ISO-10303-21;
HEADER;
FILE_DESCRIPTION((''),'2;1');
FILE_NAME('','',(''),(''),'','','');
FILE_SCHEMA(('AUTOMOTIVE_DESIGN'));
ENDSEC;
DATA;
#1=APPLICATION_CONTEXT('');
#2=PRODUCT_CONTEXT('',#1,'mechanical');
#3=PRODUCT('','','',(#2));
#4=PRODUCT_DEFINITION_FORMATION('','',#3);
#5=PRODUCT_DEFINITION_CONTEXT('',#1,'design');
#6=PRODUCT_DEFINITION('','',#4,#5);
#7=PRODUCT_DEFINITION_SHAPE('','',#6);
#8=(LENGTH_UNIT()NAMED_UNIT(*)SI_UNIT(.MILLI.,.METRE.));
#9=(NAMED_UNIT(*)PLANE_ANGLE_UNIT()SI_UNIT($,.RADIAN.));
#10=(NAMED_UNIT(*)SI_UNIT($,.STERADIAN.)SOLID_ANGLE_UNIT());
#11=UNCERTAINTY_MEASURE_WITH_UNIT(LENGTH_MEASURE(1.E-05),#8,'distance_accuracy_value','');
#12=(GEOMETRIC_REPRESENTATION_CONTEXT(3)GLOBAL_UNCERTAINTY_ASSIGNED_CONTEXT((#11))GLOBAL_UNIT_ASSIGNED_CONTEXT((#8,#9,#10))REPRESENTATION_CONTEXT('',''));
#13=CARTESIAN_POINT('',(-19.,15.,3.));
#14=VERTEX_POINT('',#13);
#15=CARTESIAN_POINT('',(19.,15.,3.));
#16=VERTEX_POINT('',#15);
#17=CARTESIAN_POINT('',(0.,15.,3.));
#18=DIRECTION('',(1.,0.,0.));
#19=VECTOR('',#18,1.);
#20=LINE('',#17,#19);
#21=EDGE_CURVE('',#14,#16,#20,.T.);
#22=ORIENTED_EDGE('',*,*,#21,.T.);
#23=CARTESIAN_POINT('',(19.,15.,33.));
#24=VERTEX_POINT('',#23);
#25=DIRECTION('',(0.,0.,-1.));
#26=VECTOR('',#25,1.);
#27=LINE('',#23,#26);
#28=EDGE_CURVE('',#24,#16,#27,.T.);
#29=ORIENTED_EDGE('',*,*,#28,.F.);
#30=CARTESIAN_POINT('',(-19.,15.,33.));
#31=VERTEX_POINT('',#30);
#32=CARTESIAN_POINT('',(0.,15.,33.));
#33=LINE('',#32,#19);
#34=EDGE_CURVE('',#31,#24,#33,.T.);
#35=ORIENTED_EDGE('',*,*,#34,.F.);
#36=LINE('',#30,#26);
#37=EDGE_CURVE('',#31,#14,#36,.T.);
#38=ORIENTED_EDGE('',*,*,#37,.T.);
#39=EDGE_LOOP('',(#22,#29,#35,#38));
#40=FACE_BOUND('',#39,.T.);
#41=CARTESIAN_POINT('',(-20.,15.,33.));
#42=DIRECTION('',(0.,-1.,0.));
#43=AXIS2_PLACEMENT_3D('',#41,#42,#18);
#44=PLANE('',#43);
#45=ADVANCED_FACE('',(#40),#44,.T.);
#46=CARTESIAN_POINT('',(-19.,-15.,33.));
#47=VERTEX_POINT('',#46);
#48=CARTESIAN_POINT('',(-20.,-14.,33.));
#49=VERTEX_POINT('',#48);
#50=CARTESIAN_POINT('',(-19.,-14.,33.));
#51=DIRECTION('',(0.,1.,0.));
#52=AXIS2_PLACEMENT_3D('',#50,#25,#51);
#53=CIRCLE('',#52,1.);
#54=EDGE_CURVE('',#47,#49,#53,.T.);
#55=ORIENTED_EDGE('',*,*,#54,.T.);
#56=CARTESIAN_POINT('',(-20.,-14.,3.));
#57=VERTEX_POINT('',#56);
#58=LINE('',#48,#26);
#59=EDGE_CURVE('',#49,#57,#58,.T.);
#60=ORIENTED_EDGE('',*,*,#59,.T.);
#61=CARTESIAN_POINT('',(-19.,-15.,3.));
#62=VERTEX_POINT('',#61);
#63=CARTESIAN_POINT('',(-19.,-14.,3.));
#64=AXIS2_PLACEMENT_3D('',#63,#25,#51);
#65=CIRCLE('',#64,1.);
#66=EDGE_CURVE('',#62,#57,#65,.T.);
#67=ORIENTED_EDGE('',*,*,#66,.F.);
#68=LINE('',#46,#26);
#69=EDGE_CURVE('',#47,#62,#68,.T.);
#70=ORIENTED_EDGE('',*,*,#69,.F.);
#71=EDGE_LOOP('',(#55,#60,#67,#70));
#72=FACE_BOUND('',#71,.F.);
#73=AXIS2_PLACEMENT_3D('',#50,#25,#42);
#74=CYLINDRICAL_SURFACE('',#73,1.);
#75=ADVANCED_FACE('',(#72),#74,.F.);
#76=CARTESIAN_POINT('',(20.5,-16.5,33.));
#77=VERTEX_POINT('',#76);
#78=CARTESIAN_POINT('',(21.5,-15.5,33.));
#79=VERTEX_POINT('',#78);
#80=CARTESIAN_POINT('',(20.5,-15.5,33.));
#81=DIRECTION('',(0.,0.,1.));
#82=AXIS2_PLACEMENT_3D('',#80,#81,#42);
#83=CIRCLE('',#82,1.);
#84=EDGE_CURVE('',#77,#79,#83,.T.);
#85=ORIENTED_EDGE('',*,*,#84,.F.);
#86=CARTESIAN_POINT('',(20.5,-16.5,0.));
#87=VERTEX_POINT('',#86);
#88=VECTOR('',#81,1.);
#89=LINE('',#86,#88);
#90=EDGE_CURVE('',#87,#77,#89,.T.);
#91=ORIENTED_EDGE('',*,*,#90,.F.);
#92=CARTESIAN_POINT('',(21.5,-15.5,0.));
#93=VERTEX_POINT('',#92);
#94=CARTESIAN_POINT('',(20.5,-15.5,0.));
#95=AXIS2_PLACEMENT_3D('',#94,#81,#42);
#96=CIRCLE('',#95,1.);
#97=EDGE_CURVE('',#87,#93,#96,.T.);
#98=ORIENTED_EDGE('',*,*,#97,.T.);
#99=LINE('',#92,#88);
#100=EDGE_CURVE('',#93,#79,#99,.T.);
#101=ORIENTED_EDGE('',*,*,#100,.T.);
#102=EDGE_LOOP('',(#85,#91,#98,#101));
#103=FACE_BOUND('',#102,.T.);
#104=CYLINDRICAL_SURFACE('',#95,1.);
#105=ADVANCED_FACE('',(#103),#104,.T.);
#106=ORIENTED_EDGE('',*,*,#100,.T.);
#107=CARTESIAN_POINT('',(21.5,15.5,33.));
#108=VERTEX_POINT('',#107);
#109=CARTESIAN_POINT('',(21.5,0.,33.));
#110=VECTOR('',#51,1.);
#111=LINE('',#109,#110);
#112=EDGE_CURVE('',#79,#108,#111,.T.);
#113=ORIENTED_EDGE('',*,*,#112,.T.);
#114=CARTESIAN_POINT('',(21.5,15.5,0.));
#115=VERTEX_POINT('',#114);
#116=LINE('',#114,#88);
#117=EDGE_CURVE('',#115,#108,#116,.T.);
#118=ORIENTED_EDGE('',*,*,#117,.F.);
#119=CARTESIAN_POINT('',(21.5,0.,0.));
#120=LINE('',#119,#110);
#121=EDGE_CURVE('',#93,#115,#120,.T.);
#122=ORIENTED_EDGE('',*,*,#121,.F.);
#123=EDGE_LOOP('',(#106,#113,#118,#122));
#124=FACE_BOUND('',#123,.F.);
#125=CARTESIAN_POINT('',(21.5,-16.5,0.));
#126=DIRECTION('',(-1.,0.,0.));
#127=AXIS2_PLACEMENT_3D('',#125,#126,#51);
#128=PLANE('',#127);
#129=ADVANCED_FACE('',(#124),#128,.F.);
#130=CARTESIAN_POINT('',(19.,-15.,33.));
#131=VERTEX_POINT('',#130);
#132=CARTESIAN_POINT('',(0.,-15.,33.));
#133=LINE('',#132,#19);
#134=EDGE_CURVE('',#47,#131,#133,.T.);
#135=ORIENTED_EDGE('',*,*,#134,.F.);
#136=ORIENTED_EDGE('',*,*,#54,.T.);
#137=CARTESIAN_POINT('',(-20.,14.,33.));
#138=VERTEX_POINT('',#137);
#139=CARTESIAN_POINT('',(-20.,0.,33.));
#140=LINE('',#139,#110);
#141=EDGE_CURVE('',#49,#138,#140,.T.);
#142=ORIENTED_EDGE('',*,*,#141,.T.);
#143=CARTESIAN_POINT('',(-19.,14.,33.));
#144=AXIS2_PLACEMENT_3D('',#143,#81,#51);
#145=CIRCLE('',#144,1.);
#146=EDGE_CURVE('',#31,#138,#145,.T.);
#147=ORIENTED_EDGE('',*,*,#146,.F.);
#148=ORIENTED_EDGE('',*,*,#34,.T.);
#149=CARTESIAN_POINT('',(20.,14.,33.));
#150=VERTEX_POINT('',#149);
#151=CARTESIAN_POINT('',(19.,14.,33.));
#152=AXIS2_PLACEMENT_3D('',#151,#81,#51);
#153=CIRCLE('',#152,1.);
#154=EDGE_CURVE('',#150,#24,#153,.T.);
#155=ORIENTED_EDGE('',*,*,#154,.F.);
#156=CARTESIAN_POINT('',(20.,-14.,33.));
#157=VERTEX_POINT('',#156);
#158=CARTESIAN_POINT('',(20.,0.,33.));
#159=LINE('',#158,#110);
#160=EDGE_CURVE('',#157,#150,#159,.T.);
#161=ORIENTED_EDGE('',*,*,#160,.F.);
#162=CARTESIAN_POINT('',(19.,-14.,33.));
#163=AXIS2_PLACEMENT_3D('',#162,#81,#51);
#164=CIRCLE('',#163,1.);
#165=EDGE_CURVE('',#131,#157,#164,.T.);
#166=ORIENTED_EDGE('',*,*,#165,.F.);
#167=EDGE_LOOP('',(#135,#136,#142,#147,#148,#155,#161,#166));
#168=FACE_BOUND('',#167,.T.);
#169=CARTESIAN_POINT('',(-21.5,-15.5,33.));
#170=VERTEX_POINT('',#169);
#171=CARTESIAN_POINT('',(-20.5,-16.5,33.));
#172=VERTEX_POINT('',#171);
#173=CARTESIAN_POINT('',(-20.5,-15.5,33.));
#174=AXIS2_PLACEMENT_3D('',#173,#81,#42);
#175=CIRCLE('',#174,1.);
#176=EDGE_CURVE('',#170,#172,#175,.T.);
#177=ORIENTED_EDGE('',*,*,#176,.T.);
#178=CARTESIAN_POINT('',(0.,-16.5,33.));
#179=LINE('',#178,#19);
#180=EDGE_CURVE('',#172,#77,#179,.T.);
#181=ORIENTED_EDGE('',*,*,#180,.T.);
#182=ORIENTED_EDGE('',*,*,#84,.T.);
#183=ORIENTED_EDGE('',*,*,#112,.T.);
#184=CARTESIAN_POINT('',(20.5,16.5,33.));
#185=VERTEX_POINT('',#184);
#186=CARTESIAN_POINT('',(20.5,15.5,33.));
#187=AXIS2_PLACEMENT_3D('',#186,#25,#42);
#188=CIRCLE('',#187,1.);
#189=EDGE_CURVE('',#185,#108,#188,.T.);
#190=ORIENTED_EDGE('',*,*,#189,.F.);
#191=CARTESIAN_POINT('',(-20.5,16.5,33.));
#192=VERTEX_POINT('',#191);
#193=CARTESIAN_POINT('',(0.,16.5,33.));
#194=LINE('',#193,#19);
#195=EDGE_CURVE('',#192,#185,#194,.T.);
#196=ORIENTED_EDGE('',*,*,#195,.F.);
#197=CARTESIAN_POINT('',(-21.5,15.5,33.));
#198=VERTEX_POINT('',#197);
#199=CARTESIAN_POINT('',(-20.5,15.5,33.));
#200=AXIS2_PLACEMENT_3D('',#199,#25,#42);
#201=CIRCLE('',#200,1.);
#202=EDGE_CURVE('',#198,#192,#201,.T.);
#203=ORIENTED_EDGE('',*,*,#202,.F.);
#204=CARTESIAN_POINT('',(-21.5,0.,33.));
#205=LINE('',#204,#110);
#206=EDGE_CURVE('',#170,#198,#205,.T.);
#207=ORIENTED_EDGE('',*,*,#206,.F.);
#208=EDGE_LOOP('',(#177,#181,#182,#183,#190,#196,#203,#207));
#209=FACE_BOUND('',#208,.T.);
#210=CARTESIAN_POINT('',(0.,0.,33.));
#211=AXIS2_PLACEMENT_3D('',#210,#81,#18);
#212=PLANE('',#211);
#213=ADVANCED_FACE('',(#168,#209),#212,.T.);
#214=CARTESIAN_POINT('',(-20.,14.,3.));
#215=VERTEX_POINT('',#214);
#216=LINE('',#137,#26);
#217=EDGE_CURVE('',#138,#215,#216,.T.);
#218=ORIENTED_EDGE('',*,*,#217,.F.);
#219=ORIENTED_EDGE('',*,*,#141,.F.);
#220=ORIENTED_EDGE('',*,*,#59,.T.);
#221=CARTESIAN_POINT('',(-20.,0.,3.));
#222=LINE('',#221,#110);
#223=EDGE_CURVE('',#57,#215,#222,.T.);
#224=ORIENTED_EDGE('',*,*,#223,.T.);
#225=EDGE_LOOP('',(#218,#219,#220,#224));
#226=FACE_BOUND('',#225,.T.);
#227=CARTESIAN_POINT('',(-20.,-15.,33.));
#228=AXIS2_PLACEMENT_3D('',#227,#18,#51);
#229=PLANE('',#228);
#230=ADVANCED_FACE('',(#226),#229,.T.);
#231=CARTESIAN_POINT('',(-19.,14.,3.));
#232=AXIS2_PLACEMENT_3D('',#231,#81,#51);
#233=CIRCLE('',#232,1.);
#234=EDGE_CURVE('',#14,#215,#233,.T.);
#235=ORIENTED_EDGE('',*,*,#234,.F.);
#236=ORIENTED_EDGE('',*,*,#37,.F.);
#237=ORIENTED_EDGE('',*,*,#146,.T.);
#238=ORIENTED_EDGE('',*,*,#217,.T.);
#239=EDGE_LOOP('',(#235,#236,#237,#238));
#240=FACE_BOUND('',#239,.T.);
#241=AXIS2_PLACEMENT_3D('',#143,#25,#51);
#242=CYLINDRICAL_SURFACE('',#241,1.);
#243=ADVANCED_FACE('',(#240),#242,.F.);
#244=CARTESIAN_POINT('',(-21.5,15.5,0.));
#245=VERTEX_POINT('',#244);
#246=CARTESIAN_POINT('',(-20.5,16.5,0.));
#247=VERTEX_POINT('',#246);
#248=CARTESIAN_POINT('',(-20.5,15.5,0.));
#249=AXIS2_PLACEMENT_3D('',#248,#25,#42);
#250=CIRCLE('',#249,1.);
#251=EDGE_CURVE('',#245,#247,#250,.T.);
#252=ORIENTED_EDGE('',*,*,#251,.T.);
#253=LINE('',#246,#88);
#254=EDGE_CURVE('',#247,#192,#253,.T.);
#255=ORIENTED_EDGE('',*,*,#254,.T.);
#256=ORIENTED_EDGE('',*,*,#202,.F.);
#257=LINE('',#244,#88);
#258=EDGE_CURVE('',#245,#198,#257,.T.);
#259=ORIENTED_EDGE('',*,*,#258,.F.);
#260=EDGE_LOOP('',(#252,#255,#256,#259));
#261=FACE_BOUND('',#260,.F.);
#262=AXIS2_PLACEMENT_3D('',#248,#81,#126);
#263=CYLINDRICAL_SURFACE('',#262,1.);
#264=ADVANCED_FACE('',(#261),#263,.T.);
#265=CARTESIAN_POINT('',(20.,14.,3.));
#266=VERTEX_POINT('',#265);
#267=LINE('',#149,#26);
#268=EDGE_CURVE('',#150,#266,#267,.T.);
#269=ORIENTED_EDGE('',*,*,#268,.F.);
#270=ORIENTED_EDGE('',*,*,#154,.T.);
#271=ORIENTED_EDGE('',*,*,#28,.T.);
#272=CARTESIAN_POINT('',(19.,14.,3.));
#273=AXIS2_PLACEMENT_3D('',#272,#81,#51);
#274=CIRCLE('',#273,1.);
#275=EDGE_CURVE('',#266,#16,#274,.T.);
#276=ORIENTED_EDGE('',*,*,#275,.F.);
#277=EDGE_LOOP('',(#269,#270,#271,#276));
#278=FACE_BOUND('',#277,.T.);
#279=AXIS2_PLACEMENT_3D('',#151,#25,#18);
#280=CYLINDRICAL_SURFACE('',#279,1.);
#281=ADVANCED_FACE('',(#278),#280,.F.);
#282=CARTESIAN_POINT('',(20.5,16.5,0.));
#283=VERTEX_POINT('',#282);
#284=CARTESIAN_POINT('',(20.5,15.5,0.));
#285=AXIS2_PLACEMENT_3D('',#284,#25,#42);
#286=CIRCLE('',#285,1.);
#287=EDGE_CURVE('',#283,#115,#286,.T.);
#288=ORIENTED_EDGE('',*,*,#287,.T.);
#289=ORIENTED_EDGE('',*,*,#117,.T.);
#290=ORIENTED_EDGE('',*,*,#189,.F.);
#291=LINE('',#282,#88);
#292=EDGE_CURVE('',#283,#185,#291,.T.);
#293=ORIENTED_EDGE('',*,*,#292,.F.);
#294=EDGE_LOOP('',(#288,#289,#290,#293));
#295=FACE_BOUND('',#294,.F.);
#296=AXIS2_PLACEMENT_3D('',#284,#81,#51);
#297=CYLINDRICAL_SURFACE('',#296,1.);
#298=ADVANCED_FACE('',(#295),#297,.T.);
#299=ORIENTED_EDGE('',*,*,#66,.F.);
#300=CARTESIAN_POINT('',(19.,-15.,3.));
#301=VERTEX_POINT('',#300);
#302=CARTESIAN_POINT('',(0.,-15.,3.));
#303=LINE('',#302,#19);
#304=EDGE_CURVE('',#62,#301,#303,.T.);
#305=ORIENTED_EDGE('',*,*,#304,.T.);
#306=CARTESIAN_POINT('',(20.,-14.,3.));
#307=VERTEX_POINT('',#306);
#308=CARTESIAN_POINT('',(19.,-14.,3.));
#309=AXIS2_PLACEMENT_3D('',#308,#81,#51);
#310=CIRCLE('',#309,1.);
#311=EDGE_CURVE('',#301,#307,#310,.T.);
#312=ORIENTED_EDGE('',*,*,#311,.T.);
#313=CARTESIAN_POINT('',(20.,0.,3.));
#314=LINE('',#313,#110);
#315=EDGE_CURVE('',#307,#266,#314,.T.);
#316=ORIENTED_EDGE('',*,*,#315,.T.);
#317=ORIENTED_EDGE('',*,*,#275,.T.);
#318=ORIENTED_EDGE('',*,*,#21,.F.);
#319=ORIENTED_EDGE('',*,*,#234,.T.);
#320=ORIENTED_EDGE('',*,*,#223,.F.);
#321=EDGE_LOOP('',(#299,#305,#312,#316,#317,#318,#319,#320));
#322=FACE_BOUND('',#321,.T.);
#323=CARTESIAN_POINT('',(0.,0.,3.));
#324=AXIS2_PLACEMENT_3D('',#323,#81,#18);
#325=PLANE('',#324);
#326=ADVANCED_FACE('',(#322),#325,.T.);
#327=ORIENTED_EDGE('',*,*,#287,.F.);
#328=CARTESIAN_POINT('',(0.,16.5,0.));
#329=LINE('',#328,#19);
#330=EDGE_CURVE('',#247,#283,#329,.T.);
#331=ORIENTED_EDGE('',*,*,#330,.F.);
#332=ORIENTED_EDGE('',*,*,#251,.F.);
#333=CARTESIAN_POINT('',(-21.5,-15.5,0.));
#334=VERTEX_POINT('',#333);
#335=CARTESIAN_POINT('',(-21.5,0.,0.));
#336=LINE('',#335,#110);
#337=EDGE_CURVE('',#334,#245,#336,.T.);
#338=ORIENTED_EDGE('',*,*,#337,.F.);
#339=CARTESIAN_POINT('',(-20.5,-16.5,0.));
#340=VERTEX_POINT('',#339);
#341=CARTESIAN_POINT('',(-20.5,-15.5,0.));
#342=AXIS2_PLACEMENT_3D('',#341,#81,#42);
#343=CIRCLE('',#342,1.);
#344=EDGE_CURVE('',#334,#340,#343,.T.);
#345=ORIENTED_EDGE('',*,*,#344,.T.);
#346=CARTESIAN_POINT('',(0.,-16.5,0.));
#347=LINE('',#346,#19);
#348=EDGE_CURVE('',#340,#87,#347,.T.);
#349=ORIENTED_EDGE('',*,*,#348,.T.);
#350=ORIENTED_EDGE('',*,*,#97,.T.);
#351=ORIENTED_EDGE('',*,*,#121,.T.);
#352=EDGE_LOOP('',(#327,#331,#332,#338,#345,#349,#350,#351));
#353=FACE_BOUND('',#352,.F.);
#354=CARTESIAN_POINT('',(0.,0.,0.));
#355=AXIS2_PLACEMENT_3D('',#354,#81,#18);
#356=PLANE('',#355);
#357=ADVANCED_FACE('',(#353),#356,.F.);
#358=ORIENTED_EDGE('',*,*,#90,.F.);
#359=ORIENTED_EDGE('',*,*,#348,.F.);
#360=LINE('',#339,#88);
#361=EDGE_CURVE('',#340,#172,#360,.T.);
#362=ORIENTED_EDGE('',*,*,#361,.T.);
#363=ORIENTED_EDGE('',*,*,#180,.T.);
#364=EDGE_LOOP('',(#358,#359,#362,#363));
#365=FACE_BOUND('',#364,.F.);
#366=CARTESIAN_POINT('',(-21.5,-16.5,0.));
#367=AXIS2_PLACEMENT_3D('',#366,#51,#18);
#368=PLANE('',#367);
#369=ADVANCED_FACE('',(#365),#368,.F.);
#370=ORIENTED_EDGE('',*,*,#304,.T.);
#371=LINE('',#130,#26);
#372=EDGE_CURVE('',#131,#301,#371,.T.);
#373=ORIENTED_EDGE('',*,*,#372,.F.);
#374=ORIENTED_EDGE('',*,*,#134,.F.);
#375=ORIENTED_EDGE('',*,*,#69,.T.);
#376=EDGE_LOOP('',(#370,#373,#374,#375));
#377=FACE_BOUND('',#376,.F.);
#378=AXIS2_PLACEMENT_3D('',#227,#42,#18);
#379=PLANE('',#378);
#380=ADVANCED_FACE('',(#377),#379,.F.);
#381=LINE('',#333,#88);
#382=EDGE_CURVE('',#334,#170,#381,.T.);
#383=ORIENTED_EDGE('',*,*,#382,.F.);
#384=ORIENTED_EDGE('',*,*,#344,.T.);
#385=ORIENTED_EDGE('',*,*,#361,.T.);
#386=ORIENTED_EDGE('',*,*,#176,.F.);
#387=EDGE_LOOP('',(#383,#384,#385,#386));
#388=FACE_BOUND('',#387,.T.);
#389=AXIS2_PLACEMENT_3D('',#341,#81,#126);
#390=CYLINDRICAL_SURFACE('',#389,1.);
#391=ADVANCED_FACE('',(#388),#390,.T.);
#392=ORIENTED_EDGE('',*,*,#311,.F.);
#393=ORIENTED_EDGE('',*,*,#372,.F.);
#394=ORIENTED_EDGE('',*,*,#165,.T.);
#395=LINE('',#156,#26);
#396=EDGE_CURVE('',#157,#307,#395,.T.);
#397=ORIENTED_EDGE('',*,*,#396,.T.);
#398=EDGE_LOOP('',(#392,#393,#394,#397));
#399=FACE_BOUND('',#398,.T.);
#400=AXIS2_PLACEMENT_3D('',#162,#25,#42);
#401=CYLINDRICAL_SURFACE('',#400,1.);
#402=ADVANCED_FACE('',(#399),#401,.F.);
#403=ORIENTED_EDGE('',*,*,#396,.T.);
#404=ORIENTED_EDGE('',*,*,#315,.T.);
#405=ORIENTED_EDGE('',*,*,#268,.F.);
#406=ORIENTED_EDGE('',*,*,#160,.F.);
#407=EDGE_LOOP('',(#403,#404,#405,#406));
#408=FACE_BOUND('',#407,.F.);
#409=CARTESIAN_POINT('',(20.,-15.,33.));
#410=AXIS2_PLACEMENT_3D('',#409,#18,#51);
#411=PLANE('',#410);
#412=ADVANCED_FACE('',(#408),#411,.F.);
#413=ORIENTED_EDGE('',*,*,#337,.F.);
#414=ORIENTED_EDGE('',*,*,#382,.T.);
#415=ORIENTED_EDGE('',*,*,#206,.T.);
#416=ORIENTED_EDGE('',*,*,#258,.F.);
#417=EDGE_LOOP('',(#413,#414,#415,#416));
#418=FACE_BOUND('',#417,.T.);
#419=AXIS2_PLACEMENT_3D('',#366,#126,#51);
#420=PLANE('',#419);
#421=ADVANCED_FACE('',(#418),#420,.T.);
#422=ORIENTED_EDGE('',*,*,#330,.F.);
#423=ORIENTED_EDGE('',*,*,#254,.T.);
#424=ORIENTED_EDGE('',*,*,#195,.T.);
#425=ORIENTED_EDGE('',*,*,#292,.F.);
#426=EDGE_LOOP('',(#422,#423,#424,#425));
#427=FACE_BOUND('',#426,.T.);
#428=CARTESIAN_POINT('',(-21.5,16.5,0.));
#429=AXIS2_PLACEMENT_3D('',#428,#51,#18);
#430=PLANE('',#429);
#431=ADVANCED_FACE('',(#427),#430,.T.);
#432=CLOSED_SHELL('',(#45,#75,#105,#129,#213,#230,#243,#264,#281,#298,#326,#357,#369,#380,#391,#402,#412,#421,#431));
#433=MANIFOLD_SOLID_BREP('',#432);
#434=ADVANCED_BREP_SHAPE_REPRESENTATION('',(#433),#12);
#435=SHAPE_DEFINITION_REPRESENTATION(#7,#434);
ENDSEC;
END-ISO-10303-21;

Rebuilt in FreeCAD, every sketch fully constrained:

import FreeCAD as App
import Part
import Sketcher

V = App.Vector
Q = App.Units.Quantity


def edges_at(feature, points):
    """Names of the edges that pass closest to the given points."""
    edges = feature.Shape.Edges
    near = lambda p: min(range(len(edges)), key=lambda i: edges[i].distToShape(Part.Vertex(*p))[0])
    return sorted({f"Edge{near(p) + 1}" for p in points})

doc = App.newDocument("Part")
body = doc.addObject("PartDesign::Body", "Body")

# Sketch on XY plane
sketch1 = body.newObject("Sketcher::SketchObject", "Sketch")
sketch1.AttachmentSupport = (doc.getObject("XY_Plane"), [""])
sketch1.MapMode = "FlatFace"
sketch1.addGeometry([
    Part.LineSegment(V(-22, 16, 0), V(-22, -16, 0)),
    Part.LineSegment(V(-22, -16, 0), V(22, -16, 0)),
    Part.LineSegment(V(22, -16, 0), V(22, 16, 0)),
    Part.LineSegment(V(22, 16, 0), V(-22, 16, 0)),
], False)
sketch1.addConstraint([
    Sketcher.Constraint("Coincident", 0, 2, 1, 1),
    Sketcher.Constraint("Coincident", 1, 2, 2, 1),
    Sketcher.Constraint("Coincident", 2, 2, 3, 1),
    Sketcher.Constraint("Coincident", 3, 2, 0, 1),
    Sketcher.Constraint("Vertical", 0),
    Sketcher.Constraint("Horizontal", 1),
    Sketcher.Constraint("Vertical", 2),
    Sketcher.Constraint("Horizontal", 3),
    Sketcher.Constraint("Symmetric", 0, 2, 2, 2, -1, 1),
    Sketcher.Constraint("DistanceX", 1, 1, 1, 2, Q("43 mm")),
    Sketcher.Constraint("DistanceY", 0, 2, 0, 1, Q("33 mm")),
])
pad1 = body.newObject("PartDesign::Pad", "Pad")
pad1.Profile = sketch1
pad1.Length = 33

# Sketch on XY plane
sketch2 = body.newObject("Sketcher::SketchObject", "Sketch001")
sketch2.AttachmentSupport = (doc.getObject("XY_Plane"), [""])
sketch2.MapMode = "FlatFace"
sketch2.AttachmentOffset = App.Placement(V(0, 0, 33), App.Rotation())
sketch2.addGeometry([
    Part.LineSegment(V(-20, 15, 0), V(-20, -15, 0)),
    Part.LineSegment(V(-20, -15, 0), V(20, -15, 0)),
    Part.LineSegment(V(20, -15, 0), V(20, 15, 0)),
    Part.LineSegment(V(20, 15, 0), V(-20, 15, 0)),
], False)
sketch2.addConstraint([
    Sketcher.Constraint("Coincident", 0, 2, 1, 1),
    Sketcher.Constraint("Coincident", 1, 2, 2, 1),
    Sketcher.Constraint("Coincident", 2, 2, 3, 1),
    Sketcher.Constraint("Coincident", 3, 2, 0, 1),
    Sketcher.Constraint("Vertical", 0),
    Sketcher.Constraint("Horizontal", 1),
    Sketcher.Constraint("Vertical", 2),
    Sketcher.Constraint("Horizontal", 3),
    Sketcher.Constraint("Symmetric", 0, 2, 2, 2, -1, 1),
    Sketcher.Constraint("DistanceX", 1, 1, 1, 2, Q("40 mm")),
    Sketcher.Constraint("DistanceY", 0, 2, 0, 1, Q("30 mm")),
])
pocket1 = body.newObject("PartDesign::Pocket", "Pocket")
pocket1.Profile = sketch2
pocket1.Length = 30
doc.recompute()

fillet = body.newObject("PartDesign::Fillet", "Fillet")
fillet.Base = (pocket1, edges_at(pocket1, [
    (-21.5, -16.5, 16.5),
    (21.5, -16.5, 16.5),
    (21.5, 16.5, 16.5),
    (-21.5, 16.5, 16.5),
]))
fillet.Radius = 1
doc.recompute()

fillet2 = body.newObject("PartDesign::Fillet", "Fillet001")
fillet2.Base = (fillet, edges_at(fillet, [
    (-20, -15, 18),
    (-20, 15, 18),
    (20, 15, 18),
    (20, -15, 18),
]))
fillet2.Radius = 1

doc.recompute()
